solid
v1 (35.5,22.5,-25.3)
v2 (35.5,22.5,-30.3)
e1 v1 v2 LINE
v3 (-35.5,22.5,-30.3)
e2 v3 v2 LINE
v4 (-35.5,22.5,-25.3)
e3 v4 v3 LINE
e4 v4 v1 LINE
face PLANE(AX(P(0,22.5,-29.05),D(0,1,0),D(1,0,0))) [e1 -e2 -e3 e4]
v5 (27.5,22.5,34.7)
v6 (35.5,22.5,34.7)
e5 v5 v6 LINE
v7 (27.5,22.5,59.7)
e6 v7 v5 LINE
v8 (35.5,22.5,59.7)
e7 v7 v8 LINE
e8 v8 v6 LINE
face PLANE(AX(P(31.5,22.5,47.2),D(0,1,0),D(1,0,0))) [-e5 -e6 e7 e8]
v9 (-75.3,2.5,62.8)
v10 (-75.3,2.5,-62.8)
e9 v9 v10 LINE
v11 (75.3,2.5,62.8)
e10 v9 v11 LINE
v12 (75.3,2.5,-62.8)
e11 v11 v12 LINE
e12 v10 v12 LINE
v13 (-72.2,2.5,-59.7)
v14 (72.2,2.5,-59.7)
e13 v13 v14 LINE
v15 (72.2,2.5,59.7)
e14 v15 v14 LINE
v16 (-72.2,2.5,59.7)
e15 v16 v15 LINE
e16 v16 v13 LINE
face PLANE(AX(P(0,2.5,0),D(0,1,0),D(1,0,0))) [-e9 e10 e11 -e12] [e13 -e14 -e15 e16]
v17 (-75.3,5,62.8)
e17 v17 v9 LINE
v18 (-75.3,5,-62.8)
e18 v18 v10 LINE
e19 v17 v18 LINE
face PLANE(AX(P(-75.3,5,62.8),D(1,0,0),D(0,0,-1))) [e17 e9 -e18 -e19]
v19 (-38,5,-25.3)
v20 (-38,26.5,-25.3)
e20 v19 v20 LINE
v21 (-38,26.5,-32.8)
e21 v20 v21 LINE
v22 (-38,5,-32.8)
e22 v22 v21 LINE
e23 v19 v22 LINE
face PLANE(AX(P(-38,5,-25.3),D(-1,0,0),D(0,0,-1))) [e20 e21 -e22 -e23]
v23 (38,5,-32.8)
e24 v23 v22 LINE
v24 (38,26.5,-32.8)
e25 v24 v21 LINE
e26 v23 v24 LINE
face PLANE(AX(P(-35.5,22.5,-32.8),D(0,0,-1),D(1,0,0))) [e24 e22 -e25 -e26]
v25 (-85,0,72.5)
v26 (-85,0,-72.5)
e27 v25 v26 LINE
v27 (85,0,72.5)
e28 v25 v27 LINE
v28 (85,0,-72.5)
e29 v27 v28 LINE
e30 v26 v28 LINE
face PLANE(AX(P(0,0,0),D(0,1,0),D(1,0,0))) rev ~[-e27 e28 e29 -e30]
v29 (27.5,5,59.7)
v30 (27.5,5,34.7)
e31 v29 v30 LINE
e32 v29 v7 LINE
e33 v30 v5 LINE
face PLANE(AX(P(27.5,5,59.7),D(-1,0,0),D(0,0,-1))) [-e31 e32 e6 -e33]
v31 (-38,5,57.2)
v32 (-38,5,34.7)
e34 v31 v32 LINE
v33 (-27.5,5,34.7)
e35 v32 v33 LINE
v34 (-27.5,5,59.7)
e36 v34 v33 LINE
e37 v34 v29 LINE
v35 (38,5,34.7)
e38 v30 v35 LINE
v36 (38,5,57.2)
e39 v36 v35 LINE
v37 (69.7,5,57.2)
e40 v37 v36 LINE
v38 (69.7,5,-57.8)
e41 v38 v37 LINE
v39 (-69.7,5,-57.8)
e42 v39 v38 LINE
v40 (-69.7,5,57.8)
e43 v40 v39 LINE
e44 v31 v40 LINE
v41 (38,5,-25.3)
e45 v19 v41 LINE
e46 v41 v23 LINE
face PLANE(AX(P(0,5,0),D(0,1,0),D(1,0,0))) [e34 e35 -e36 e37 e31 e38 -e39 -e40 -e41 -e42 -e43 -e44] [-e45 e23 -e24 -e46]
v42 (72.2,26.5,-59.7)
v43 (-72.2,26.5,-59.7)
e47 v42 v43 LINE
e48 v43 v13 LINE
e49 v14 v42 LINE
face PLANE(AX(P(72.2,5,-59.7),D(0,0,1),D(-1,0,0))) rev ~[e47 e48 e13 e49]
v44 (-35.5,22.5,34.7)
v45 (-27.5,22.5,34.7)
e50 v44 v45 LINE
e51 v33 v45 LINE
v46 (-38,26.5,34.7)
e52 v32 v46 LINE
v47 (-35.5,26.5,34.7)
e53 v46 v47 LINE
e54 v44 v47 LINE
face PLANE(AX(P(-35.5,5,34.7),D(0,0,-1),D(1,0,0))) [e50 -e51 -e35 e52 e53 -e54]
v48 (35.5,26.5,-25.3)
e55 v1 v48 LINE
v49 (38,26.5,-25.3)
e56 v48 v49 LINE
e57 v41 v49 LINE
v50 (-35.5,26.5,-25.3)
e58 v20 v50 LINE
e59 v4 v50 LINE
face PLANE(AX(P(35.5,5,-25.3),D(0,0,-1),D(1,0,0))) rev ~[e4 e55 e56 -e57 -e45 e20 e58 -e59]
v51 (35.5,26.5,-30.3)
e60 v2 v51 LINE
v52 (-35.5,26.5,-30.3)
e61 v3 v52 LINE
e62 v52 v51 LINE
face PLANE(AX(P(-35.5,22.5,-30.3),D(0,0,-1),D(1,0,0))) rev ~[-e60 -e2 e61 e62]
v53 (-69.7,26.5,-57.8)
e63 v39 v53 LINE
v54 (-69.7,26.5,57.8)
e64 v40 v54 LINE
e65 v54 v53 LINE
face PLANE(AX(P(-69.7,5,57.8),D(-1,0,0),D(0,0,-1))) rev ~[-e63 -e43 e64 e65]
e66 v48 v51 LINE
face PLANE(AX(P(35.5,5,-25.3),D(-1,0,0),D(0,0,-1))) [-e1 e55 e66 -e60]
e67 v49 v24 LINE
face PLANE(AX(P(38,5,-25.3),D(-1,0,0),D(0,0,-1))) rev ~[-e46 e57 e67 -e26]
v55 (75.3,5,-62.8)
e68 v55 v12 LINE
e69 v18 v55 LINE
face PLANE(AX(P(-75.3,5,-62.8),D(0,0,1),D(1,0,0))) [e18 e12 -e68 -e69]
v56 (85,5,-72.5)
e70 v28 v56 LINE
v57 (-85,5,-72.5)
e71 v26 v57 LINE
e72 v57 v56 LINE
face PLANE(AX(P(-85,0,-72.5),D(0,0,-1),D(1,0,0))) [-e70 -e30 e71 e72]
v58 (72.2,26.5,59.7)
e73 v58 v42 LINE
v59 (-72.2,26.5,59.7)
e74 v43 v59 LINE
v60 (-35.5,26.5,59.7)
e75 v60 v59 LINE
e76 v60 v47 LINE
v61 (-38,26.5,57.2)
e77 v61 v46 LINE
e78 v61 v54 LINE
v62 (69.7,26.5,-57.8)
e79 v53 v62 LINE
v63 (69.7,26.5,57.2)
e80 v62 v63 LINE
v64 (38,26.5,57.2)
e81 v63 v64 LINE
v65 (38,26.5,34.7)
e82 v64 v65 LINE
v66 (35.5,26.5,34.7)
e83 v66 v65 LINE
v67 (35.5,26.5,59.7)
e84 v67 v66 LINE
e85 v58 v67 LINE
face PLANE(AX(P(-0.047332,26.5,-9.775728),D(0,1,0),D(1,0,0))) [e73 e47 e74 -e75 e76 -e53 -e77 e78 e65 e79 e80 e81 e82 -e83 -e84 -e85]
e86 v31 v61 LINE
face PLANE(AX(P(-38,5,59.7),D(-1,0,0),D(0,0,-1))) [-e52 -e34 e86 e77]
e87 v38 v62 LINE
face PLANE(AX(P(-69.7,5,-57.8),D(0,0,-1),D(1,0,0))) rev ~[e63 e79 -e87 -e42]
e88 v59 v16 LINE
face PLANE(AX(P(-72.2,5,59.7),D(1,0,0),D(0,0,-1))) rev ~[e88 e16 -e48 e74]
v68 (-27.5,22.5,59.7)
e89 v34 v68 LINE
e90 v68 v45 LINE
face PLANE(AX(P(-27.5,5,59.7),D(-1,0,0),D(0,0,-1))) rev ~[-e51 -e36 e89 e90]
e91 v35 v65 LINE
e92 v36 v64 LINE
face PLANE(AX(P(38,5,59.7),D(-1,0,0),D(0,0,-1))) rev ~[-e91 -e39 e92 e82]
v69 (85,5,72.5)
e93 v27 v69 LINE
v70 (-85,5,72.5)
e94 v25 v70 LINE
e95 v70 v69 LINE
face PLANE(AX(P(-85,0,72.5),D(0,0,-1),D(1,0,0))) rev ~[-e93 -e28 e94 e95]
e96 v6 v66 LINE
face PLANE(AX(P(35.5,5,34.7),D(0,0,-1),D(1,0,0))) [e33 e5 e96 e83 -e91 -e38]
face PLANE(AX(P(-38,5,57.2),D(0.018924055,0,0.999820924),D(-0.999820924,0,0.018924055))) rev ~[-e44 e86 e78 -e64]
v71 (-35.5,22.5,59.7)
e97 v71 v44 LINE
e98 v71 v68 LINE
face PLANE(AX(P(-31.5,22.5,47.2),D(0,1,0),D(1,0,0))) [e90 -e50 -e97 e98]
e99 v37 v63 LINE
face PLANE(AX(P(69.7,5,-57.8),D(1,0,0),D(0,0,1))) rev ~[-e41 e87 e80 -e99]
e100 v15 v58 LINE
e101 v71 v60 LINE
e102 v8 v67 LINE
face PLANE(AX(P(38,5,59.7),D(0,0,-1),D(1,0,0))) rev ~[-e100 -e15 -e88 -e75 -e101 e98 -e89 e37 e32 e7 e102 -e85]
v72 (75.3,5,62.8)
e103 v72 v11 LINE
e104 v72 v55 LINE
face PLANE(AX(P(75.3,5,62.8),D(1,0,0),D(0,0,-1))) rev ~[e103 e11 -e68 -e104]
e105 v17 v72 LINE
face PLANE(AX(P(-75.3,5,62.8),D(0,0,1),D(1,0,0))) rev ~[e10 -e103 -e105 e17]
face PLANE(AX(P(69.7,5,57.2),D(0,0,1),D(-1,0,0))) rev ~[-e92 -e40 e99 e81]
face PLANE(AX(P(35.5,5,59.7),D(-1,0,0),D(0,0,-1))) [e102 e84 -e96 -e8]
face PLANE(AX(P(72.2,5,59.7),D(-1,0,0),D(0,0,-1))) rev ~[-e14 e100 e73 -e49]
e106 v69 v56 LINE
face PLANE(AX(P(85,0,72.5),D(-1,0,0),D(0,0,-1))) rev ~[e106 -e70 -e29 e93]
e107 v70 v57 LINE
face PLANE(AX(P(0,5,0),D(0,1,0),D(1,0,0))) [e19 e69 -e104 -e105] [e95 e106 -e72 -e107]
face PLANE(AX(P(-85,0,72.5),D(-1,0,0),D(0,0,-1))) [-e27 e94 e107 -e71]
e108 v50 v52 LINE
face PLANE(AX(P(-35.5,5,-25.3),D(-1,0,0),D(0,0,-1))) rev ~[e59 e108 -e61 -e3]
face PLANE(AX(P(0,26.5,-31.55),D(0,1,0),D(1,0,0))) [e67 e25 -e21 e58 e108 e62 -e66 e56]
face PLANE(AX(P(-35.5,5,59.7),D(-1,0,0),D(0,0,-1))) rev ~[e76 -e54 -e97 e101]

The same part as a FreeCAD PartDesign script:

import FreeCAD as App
import Part
import Sketcher
from FreeCAD import Vector
Q = App.Units.Quantity

doc = App.newDocument("Part")
body = doc.addObject("PartDesign::Body", "Body")

# Sketch on XZ plane
sketch1 = body.newObject("Sketcher::SketchObject", "Sketch")
sketch1.AttachmentSupport = (doc.getObject("XZ_Plane"), [""])
sketch1.MapMode = "FlatFace"
sketch1.addGeometry([
    Part.LineSegment(Vector(-85, -72, 0), Vector(-85, 72, 0)),
    Part.LineSegment(Vector(-85, 72, 0), Vector(85, 72, 0)),
    Part.LineSegment(Vector(85, 72, 0), Vector(85, -72, 0)),
    Part.LineSegment(Vector(85, -72, 0), Vector(-85, -72, 0)),
], False)
sketch1.addConstraint([
    Sketcher.Constraint("Coincident", 0, 2, 1, 1),
    Sketcher.Constraint("Coincident", 1, 2, 2, 1),
    Sketcher.Constraint("Coincident", 2, 2, 3, 1),
    Sketcher.Constraint("Coincident", 3, 2, 0, 1),
    Sketcher.Constraint("Vertical", 0),
    Sketcher.Constraint("Horizontal", 1),
    Sketcher.Constraint("Vertical", 2),
    Sketcher.Constraint("Horizontal", 3),
    Sketcher.Constraint("Symmetric", 0, 2, 2, 2, -1, 1),
    Sketcher.Constraint("DistanceX", 1, 1, 1, 2, Q("170 mm")),
    Sketcher.Constraint("DistanceY", 0, 1, 0, 2, Q("145 mm")),
])
pad1 = body.newObject("PartDesign::Pad", "Pad")
pad1.Profile = sketch1
pad1.Length = 5
pad1.Reversed = True

# Sketch on XZ plane
sketch2 = body.newObject("Sketcher::SketchObject", "Sketch001")
sketch2.AttachmentSupport = (doc.getObject("XZ_Plane"), [""])
sketch2.MapMode = "FlatFace"
sketch2.AttachmentOffset = App.Placement(Vector(0, 0, -5), App.Rotation())
sketch2.addGeometry([
    Part.LineSegment(Vector(-75, -63, 0), Vector(-75, 63, 0)),  # 0
    Part.LineSegment(Vector(-75, 63, 0), Vector(75, 63, 0)),  # 1
    Part.LineSegment(Vector(75, 63, 0), Vector(75, -63, 0)),  # 2
    Part.LineSegment(Vector(75, -63, 0), Vector(-75, -63, 0)),  # 3
    Part.LineSegment(Vector(72, 60, 0), Vector(-72, 60, 0)),  # 4
    Part.LineSegment(Vector(-72, 60, 0), Vector(-72, -60, 0)),  # 5
    Part.LineSegment(Vector(-72, -60, 0), Vector(72, -60, 0)),  # 6
    Part.LineSegment(Vector(72, -60, 0), Vector(72, 60, 0)),  # 7
], False)
sketch2.addConstraint([
    Sketcher.Constraint("Coincident", 0, 2, 1, 1),
    Sketcher.Constraint("Coincident", 1, 2, 2, 1),
    Sketcher.Constraint("Coincident", 2, 2, 3, 1),
    Sketcher.Constraint("Coincident", 3, 2, 0, 1),
    Sketcher.Constraint("Coincident", 4, 2, 5, 1),
    Sketcher.Constraint("Coincident", 5, 2, 6, 1),
    Sketcher.Constraint("Coincident", 6, 2, 7, 1),
    Sketcher.Constraint("Coincident", 7, 2, 4, 1),
    Sketcher.Constraint("Vertical", 0),
    Sketcher.Constraint("Horizontal", 1),
    Sketcher.Constraint("Vertical", 2),
    Sketcher.Constraint("Horizontal", 3),
    Sketcher.Constraint("Horizontal", 4),
    Sketcher.Constraint("Vertical", 5),
    Sketcher.Constraint("Horizontal", 6),
    Sketcher.Constraint("Vertical", 7),
    Sketcher.Constraint("Symmetric", 0, 2, 2, 2, -1, 1),
    Sketcher.Constraint("Symmetric", 4, 2, 6, 2, -1, 1),
    Sketcher.Constraint("DistanceX", 1, 1, 1, 2, Q("150.6 mm")),
    Sketcher.Constraint("DistanceX", 4, 2, 4, 1, Q("144.4 mm")),
    Sketcher.Constraint("DistanceY", 0, 1, 0, 2, Q("125.6 mm")),
    Sketcher.Constraint("DistanceY", 5, 2, 5, 1, Q("119.4 mm")),
])
pocket1 = body.newObject("PartDesign::Pocket", "Pocket")
pocket1.Profile = sketch2
pocket1.Length = 2.5
pocket1.Reversed = True

# Sketch on XZ plane
sketch3 = body.newObject("Sketcher::SketchObject", "Sketch002")
sketch3.AttachmentSupport = (doc.getObject("XZ_Plane"), [""])
sketch3.MapMode = "FlatFace"
sketch3.AttachmentOffset = App.Placement(Vector(0, 0, -5), App.Rotation())
sketch3.addGeometry([
    Part.LineSegment(Vector(-36, -33, 0), Vector(-36, -25, 0)),  # 0
    Part.LineSegment(Vector(-36, -25, 0), Vector(36, -25, 0)),  # 1
    Part.LineSegment(Vector(36, -25, 0), Vector(36, -33, 0)),  # 2
    Part.LineSegment(Vector(36, -33, 0), Vector(-36, -33, 0)),  # 3
    Part.LineSegment(Vector(-36, 35, 0), Vector(-36, 60, 0)),  # 4
    Part.LineSegment(Vector(-36, 60, 0), Vector(-28, 60, 0)),  # 5
    Part.LineSegment(Vector(-28, 60, 0), Vector(-28, 35, 0)),  # 6
    Part.LineSegment(Vector(-28, 35, 0), Vector(-36, 35, 0)),  # 7
    Part.LineSegment(Vector(28, 35, 0), Vector(28, 60, 0)),  # 8
    Part.LineSegment(Vector(28, 60, 0), Vector(36, 60, 0)),  # 9
    Part.LineSegment(Vector(36, 60, 0), Vector(36, 35, 0)),  # 10
    Part.LineSegment(Vector(36, 35, 0), Vector(28, 35, 0)),  # 11
], False)
sketch3.addConstraint([
    Sketcher.Constraint("Coincident", 0, 2, 1, 1),
    Sketcher.Constraint("Coincident", 1, 2, 2, 1),
    Sketcher.Constraint("Coincident", 2, 2, 3, 1),
    Sketcher.Constraint("Coincident", 3, 2, 0, 1),
    Sketcher.Constraint("Coincident", 4, 2, 5, 1),
    Sketcher.Constraint("Coincident", 5, 2, 6, 1),
    Sketcher.Constraint("Coincident", 6, 2, 7, 1),
    Sketcher.Constraint("Coincident", 7, 2, 4, 1),
    Sketcher.Constraint("Coincident", 8, 2, 9, 1),
    Sketcher.Constraint("Coincident", 9, 2, 10, 1),
    Sketcher.Constraint("Coincident", 10, 2, 11, 1),
    Sketcher.Constraint("Coincident", 11, 2, 8, 1),
    Sketcher.Constraint("Vertical", 0),
    Sketcher.Constraint("Horizontal", 1),
    Sketcher.Constraint("Vertical", 2),
    Sketcher.Constraint("Horizontal", 3),
    Sketcher.Constraint("Vertical", 4),
    Sketcher.Constraint("Horizontal", 5),
    Sketcher.Constraint("Vertical", 6),
    Sketcher.Constraint("Horizontal", 7),
    Sketcher.Constraint("Vertical", 8),
    Sketcher.Constraint("Horizontal", 9),
    Sketcher.Constraint("Vertical", 10),
    Sketcher.Constraint("Horizontal", 11),
    Sketcher.Constraint("Symmetric", 5, 2, 8, 2, -2),
    Sketcher.Constraint("Symmetric", 7, 2, 10, 2, -2),
    Sketcher.Constraint("Vertical", 3, 2, 4, 2),
    Sketcher.Constraint("Vertical", 2, 2, 9, 2),
    Sketcher.Constraint("DistanceX", 1, 1, 1, 2, Q("71 mm")),
    Sketcher.Constraint("DistanceX", 5, 1, 5, 2, Q("8 mm")),
    Sketcher.Constraint("DistanceY", 4, 1, 4, 2, Q("25 mm")),
    Sketcher.Constraint("DistanceY", 0, 1, 0, 2, Q("7.5 mm")),
    Sketcher.Constraint("DistanceY", 0, 2, 4, 2, Q("85 mm")),
    Sketcher.Constraint("DistanceY", 0, 2, -1, 1, Q("25.3 mm")),
])
pad2 = body.newObject("PartDesign::Pad", "Pad001")
pad2.Profile = sketch3
pad2.Length = 17.5
pad2.Reversed = True

# Sketch on XZ plane
sketch4 = body.newObject("Sketcher::SketchObject", "Sketch003")
sketch4.AttachmentSupport = (doc.getObject("XZ_Plane"), [""])
sketch4.MapMode = "FlatFace"
sketch4.AttachmentOffset = App.Placement(Vector(0, 0, -5), App.Rotation())
sketch4.addGeometry([
    Part.LineSegment(Vector(35.5, -32.8, 0), Vector(35.5, -25.3, 0)),  # 0
    Part.LineSegment(Vector(35.5, -25.3, 0), Vector(38, -25.3, 0)),  # 1
    Part.LineSegment(Vector(38, -25.3, 0), Vector(38, -32.8, 0)),  # 2
    Part.LineSegment(Vector(38, -32.8, 0), Vector(35.5, -32.8, 0)),  # 3
    Part.LineSegment(Vector(-38, -32.8, 0), Vector(-38, -25.3, 0)),  # 4
    Part.LineSegment(Vector(-38, -25.3, 0), Vector(-35.5, -25.3, 0)),  # 5
    Part.LineSegment(Vector(-35.5, -25.3, 0), Vector(-35.5, -32.8, 0)),  # 6
    Part.LineSegment(Vector(-35.5, -32.8, 0), Vector(-38, -32.8, 0)),  # 7
    Part.LineSegment(Vector(35.5, 34.7, 0), Vector(35.5, 59.7, 0)),  # 8
    Part.LineSegment(Vector(35.5, 59.7, 0), Vector(38, 59.7, 0)),  # 9
    Part.LineSegment(Vector(38, 59.7, 0), Vector(38, 34.7, 0)),  # 10
    Part.LineSegment(Vector(38, 34.7, 0), Vector(35.5, 34.7, 0)),  # 11
    Part.LineSegment(Vector(-38, 34.7, 0), Vector(-38, 59.7, 0)),  # 12
    Part.LineSegment(Vector(-38, 59.7, 0), Vector(-35.5, 59.7, 0)),  # 13
    Part.LineSegment(Vector(-35.5, 59.7, 0), Vector(-35.5, 34.7, 0)),  # 14
    Part.LineSegment(Vector(-35.5, 34.7, 0), Vector(-38, 34.7, 0)),  # 15
], False)
sketch4.addConstraint([
    Sketcher.Constraint("Coincident", 0, 2, 1, 1),
    Sketcher.Constraint("Coincident", 1, 2, 2, 1),
    Sketcher.Constraint("Coincident", 2, 2, 3, 1),
    Sketcher.Constraint("Coincident", 3, 2, 0, 1),
    Sketcher.Constraint("Coincident", 4, 2, 5, 1),
    Sketcher.Constraint("Coincident", 5, 2, 6, 1),
    Sketcher.Constraint("Coincident", 6, 2, 7, 1),
    Sketcher.Constraint("Coincident", 7, 2, 4, 1),
    Sketcher.Constraint("Coincident", 8, 2, 9, 1),
    Sketcher.Constraint("Coincident", 9, 2, 10, 1),
    Sketcher.Constraint("Coincident", 10, 2, 11, 1),
    Sketcher.Constraint("Coincident", 11, 2, 8, 1),
    Sketcher.Constraint("Coincident", 12, 2, 13, 1),
    Sketcher.Constraint("Coincident", 13, 2, 14, 1),
    Sketcher.Constraint("Coincident", 14, 2, 15, 1),
    Sketcher.Constraint("Coincident", 15, 2, 12, 1),
    Sketcher.Constraint("Vertical", 0),
    Sketcher.Constraint("Horizontal", 1),
    Sketcher.Constraint("Vertical", 2),
    Sketcher.Constraint("Horizontal", 3),
    Sketcher.Constraint("Vertical", 4),
    Sketcher.Constraint("Horizontal", 5),
    Sketcher.Constraint("Vertical", 6),
    Sketcher.Constraint("Horizontal", 7),
    Sketcher.Constraint("Vertical", 8),
    Sketcher.Constraint("Horizontal", 9),
    Sketcher.Constraint("Vertical", 10),
    Sketcher.Constraint("Horizontal", 11),
    Sketcher.Constraint("Vertical", 12),
    Sketcher.Constraint("Horizontal", 13),
    Sketcher.Constraint("Vertical", 14),
    Sketcher.Constraint("Horizontal", 15),
    Sketcher.Constraint("Symmetric", 1, 2, 4, 2, -2),
    Sketcher.Constraint("Symmetric", 3, 2, 6, 2, -2),
    Sketcher.Constraint("Symmetric", 9, 2, 12, 2, -2),
    Sketcher.Constraint("Symmetric", 11, 2, 14, 2, -2),
    Sketcher.Constraint("Vertical", 3, 2, 8, 2),
    Sketcher.Constraint("Vertical", 2, 2, 9, 2),
    Sketcher.Constraint("DistanceY", 8, 1, 8, 2, Q("25 mm")),
    Sketcher.Constraint("DistanceX", 1, 1, 1, 2, Q("2.5 mm")),
    Sketcher.Constraint("DistanceY", 0, 1, 0, 2, Q("7.5 mm")),
    Sketcher.Constraint("DistanceX", -1, 1, 1, 2, Q("38 mm")),
    Sketcher.Constraint("DistanceY", 0, 2, 8, 2, Q("85 mm")),
    Sketcher.Constraint("DistanceY", 0, 2, -1, 1, Q("25.3 mm")),
])
pad3 = body.newObject("PartDesign::Pad", "Pad002")
pad3.Profile = sketch4
pad3.Length = 21.5
pad3.Reversed = True

# Sketch on XZ plane
sketch5 = body.newObject("Sketcher::SketchObject", "Sketch004")
sketch5.AttachmentSupport = (doc.getObject("XZ_Plane"), [""])
sketch5.MapMode = "FlatFace"
sketch5.AttachmentOffset = App.Placement(Vector(0, 0, -22.5), App.Rotation())
sketch5.addGeometry([
    Part.LineSegment(Vector(-35.5, -32.8, 0), Vector(-35.5, -30.3, 0)),
    Part.LineSegment(Vector(-35.5, -30.3, 0), Vector(35.5, -30.3, 0)),
    Part.LineSegment(Vector(35.5, -30.3, 0), Vector(35.5, -32.8, 0)),
    Part.LineSegment(Vector(35.5, -32.8, 0), Vector(-35.5, -32.8, 0)),
], False)
sketch5.addConstraint([
    Sketcher.Constraint("Coincident", 0, 2, 1, 1),
    Sketcher.Constraint("Coincident", 1, 2, 2, 1),
    Sketcher.Constraint("Coincident", 2, 2, 3, 1),
    Sketcher.Constraint("Coincident", 3, 2, 0, 1),
    Sketcher.Constraint("Vertical", 0),
    Sketcher.Constraint("Horizontal", 1),
    Sketcher.Constraint("Vertical", 2),
    Sketcher.Constraint("Horizontal", 3),
    Sketcher.Constraint("DistanceX", 1, 1, 1, 2, Q("71 mm")),
    Sketcher.Constraint("DistanceY", 0, 1, 0, 2, Q("2.5 mm")),
    Sketcher.Constraint("DistanceX", 0, 2, -1, 1, Q("35.5 mm")),
    Sketcher.Constraint("DistanceY", 0, 2, -1, 1, Q("30.3 mm")),
])
pad4 = body.newObject("PartDesign::Pad", "Pad003")
pad4.Profile = sketch5
pad4.Length = 4
pad4.Reversed = True

# Sketch on XZ plane
sketch6 = body.newObject("Sketcher::SketchObject", "Sketch005")
sketch6.AttachmentSupport = (doc.getObject("XZ_Plane"), [""])
sketch6.MapMode = "FlatFace"
sketch6.AttachmentOffset = App.Placement(Vector(0, 0, -5), App.Rotation())
sketch6.addGeometry([
    Part.LineSegment(Vector(38, 59.7, 0), Vector(72.2, 59.7, 0)),  # 0
    Part.LineSegment(Vector(72.2, 59.7, 0), Vector(72.2, -59.7, 0)),  # 1
    Part.LineSegment(Vector(72.2, -59.7, 0), Vector(-72.2, -59.7, 0)),  # 2
    Part.LineSegment(Vector(-72.2, -59.7, 0), Vector(-72.2, 59.7, 0)),  # 3
    Part.LineSegment(Vector(-72.2, 59.7, 0), Vector(-38, 59.7, 0)),  # 4
    Part.LineSegment(Vector(-38, 59.7, 0), Vector(-38, 57.2, 0)),  # 5
    Part.LineSegment(Vector(-38, 57.2, 0), Vector(-69.7, 57.8, 0)),  # 6
    Part.LineSegment(Vector(-69.7, 57.8, 0), Vector(-69.7, -57.8, 0)),  # 7
    Part.LineSegment(Vector(-69.7, -57.8, 0), Vector(69.7, -57.8, 0)),  # 8
    Part.LineSegment(Vector(69.7, -57.8, 0), Vector(69.7, 57.2, 0)),  # 9
    Part.LineSegment(Vector(69.7, 57.2, 0), Vector(38, 57.2, 0)),  # 10
    Part.LineSegment(Vector(38, 57.2, 0), Vector(38, 59.7, 0)),  # 11
], False)
sketch6.addConstraint([
    Sketcher.Constraint("Coincident", 0, 2, 1, 1),
    Sketcher.Constraint("Coincident", 1, 2, 2, 1),
    Sketcher.Constraint("Coincident", 2, 2, 3, 1),
    Sketcher.Constraint("Coincident", 3, 2, 4, 1),
    Sketcher.Constraint("Coincident", 4, 2, 5, 1),
    Sketcher.Constraint("Coincident", 5, 2, 6, 1),
    Sketcher.Constraint("Coincident", 6, 2, 7, 1),
    Sketcher.Constraint("Coincident", 7, 2, 8, 1),
    Sketcher.Constraint("Coincident", 8, 2, 9, 1),
    Sketcher.Constraint("Coincident", 9, 2, 10, 1),
    Sketcher.Constraint("Coincident", 10, 2, 11, 1),
    Sketcher.Constraint("Coincident", 11, 2, 0, 1),
    Sketcher.Constraint("Horizontal", 0),
    Sketcher.Constraint("Vertical", 1),
    Sketcher.Constraint("Horizontal", 2),
    Sketcher.Constraint("Vertical", 3),
    Sketcher.Constraint("Horizontal", 4),
    Sketcher.Constraint("Vertical", 5),
    Sketcher.Constraint("Vertical", 7),
    Sketcher.Constraint("Horizontal", 8),
    Sketcher.Constraint("Vertical", 9),
    Sketcher.Constraint("Horizontal", 10),
    Sketcher.Constraint("Vertical", 11),
    Sketcher.Constraint("Symmetric", 0, 2, 2, 2, -1, 1),
    Sketcher.Constraint("Symmetric", 6, 2, 8, 2, -1, 1),
    Sketcher.Constraint("Symmetric", 5, 2, 10, 2, -2),
    Sketcher.Constraint("Horizontal", 0, 2, 3, 2),
    Sketcher.Constraint("DistanceY", 9, 1, 9, 2, Q("115 mm")),
    Sketcher.Constraint("DistanceX", 0, 1, 0, 2, Q("34.2 mm")),
    Sketcher.Constraint("DistanceX", 2, 2, 2, 1, Q("144.4 mm")),
    Sketcher.Constraint("DistanceX", 8, 1, 8, 2, Q("139.4 mm")),
    Sketcher.Constraint("DistanceY", 1, 2, 1, 1, Q("119.4 mm")),
    Sketcher.Constraint("DistanceY", 5, 2, 5, 1, Q("2.5 mm")),
])
pad5 = body.newObject("PartDesign::Pad", "Pad004")
pad5.Profile = sketch6
pad5.Length = 21.5
pad5.Reversed = True

doc.recompute()
